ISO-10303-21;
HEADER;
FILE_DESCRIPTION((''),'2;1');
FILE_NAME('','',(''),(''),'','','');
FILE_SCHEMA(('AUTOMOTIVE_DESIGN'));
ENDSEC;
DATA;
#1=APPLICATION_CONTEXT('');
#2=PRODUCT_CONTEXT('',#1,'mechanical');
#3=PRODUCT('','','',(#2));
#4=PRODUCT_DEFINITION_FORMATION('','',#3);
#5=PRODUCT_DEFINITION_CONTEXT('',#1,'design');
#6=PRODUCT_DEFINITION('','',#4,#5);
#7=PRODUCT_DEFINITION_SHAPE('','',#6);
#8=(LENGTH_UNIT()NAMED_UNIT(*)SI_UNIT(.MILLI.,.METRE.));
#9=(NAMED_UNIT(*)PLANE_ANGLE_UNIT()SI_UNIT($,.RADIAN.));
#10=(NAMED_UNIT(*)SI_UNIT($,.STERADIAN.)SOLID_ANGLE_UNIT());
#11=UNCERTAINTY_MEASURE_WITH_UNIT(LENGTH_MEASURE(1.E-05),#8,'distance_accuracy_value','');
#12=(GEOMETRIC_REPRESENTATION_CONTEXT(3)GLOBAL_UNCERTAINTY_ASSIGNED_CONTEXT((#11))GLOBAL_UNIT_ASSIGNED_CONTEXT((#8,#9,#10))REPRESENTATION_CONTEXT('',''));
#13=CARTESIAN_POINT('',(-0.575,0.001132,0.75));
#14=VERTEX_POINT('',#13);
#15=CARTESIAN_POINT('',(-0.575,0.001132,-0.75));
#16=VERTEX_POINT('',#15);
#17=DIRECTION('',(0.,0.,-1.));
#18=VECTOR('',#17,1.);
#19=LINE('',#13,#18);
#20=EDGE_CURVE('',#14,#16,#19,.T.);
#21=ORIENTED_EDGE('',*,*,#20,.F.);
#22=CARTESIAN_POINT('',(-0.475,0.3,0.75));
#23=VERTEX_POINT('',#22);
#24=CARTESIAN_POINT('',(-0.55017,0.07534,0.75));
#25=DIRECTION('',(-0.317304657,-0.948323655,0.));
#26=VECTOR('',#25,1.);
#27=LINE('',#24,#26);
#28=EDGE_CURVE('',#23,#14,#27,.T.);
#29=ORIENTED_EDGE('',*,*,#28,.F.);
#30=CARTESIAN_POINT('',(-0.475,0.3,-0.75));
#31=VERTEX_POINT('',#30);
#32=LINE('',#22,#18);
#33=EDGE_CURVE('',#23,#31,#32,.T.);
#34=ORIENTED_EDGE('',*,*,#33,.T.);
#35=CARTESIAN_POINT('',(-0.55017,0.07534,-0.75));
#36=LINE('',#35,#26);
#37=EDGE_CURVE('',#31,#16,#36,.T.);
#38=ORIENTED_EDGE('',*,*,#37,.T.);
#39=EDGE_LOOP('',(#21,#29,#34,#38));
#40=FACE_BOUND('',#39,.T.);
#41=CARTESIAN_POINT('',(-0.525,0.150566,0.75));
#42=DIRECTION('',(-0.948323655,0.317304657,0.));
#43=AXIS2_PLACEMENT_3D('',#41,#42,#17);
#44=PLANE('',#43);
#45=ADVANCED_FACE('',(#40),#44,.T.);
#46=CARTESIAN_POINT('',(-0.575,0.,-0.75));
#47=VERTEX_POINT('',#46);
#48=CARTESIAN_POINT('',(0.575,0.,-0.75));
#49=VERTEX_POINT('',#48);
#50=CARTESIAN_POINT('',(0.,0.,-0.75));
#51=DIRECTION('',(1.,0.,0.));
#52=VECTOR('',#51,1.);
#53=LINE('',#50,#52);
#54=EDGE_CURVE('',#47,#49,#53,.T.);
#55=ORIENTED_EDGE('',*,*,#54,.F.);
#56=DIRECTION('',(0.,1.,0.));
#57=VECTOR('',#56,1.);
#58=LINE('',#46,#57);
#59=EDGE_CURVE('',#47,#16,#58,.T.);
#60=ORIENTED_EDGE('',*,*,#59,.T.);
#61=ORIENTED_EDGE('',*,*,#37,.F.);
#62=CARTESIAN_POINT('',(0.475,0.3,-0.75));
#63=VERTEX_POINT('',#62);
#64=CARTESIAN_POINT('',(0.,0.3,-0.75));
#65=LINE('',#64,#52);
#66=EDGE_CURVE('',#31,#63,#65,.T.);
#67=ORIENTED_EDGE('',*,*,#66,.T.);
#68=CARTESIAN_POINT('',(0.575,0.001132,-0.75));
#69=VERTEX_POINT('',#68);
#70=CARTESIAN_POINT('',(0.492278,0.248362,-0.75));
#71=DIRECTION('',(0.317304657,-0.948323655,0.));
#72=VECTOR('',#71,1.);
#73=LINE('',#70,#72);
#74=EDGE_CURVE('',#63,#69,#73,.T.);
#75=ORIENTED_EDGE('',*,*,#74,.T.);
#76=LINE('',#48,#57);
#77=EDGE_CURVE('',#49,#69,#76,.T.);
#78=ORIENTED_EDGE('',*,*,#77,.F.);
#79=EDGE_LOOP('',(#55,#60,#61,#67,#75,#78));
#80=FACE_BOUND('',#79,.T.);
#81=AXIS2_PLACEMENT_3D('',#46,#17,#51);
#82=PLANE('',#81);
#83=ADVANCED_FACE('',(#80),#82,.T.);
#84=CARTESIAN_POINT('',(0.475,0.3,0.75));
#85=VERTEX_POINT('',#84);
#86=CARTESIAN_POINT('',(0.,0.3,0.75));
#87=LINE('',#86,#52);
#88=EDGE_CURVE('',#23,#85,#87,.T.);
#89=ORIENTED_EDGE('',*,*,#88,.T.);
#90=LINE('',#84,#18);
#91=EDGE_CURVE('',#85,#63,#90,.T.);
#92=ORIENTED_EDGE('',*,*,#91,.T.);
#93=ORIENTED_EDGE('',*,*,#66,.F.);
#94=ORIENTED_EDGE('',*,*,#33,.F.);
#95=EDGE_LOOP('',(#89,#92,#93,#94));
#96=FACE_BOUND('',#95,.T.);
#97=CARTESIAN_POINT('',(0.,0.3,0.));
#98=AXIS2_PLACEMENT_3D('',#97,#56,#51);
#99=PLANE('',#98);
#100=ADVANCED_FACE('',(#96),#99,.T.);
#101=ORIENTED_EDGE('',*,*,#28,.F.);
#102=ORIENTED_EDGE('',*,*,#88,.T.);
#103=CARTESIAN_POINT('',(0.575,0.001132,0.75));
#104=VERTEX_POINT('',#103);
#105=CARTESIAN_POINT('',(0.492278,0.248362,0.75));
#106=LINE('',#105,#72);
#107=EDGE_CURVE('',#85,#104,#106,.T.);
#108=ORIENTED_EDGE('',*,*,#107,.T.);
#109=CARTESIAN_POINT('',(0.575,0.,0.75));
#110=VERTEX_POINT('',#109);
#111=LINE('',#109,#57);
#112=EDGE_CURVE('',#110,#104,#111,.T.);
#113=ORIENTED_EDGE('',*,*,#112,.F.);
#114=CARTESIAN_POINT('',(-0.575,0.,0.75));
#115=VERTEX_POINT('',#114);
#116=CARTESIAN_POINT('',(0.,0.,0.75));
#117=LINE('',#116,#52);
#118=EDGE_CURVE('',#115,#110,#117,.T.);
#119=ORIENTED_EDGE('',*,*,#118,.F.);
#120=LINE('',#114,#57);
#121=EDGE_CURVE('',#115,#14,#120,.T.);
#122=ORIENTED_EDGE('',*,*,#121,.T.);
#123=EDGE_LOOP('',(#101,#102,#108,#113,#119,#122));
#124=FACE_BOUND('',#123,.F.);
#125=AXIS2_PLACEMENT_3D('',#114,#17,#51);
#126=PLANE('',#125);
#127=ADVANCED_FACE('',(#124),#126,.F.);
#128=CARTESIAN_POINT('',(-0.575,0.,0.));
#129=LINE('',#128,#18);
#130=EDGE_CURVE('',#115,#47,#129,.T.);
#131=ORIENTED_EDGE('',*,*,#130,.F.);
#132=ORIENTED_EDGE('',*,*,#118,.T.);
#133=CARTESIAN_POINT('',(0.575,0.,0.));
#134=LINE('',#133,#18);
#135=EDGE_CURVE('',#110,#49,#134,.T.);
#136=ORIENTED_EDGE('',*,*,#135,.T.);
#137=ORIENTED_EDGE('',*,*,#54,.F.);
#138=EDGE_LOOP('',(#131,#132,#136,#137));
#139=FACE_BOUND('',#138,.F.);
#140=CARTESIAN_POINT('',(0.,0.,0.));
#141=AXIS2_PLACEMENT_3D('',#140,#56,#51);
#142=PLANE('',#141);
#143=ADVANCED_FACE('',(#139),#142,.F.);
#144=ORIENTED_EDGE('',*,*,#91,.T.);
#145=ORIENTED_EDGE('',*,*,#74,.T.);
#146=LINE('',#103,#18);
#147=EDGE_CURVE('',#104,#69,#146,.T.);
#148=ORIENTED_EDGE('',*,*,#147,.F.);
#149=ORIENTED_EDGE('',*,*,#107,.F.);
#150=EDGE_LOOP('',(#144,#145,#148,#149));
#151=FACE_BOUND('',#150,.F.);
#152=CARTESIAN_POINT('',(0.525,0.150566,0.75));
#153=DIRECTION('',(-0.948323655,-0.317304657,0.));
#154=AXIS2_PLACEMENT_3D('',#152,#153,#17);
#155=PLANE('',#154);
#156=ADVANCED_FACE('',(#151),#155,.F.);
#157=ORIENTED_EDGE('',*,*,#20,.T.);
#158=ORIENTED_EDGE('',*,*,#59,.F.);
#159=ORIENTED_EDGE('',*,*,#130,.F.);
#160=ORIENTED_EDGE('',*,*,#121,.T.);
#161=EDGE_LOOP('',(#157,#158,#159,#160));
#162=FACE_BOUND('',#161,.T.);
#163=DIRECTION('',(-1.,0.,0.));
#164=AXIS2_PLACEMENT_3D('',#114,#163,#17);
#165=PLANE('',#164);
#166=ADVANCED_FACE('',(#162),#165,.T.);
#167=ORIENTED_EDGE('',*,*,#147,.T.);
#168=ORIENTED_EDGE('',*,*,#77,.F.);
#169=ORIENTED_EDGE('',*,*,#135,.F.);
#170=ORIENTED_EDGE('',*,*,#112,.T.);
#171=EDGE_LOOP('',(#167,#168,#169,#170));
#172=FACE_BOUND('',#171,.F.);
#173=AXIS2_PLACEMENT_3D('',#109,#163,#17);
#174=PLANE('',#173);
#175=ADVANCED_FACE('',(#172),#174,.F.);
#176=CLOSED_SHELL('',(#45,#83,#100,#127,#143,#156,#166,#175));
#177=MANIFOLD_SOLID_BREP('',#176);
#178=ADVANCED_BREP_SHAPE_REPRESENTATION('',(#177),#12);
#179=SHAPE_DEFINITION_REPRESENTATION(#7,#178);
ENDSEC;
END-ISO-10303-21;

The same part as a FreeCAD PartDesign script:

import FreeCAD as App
import Part
import Sketcher


def edges_at(feature, points):
    """Names of the edges that pass closest to the given points."""
    edges = feature.Shape.Edges
    near = lambda p: min(range(len(edges)), key=lambda i: edges[i].distToShape(Part.Vertex(*p))[0])
    return sorted({f"Edge{near(p) + 1}" for p in points})

doc = App.newDocument("Part")
body = doc.addObject("PartDesign::Body", "Body")

# Sketch on XZ plane
sketch1 = body.newObject("Sketcher::SketchObject", "Sketch")
sketch1.AttachmentSupport = (doc.getObject("XZ_Plane"), [""])
sketch1.MapMode = "FlatFace"
sketch1.addGeometry([
    Part.LineSegment(App.Vector(-0.6, -0.8, 0), App.Vector(-0.6, 0.8, 0)),
    Part.LineSegment(App.Vector(-0.6, 0.8, 0), App.Vector(0.6, 0.8, 0)),
    Part.LineSegment(App.Vector(0.6, 0.8, 0), App.Vector(0.6, -0.8, 0)),
    Part.LineSegment(App.Vector(0.6, -0.8, 0), App.Vector(-0.6, -0.8, 0)),
], False)
sketch1.addConstraint([
    Sketcher.Constraint("Coincident", 0, 2, 1, 1),
    Sketcher.Constraint("Coincident", 1, 2, 2, 1),
    Sketcher.Constraint("Coincident", 2, 2, 3, 1),
    Sketcher.Constraint("Coincident", 3, 2, 0, 1),
    Sketcher.Constraint("Vertical", 0),
    Sketcher.Constraint("Horizontal", 1),
    Sketcher.Constraint("Vertical", 2),
    Sketcher.Constraint("Horizontal", 3),
    Sketcher.Constraint("Symmetric", 0, 2, 2, 2, -1, 1),
    Sketcher.Constraint("DistanceY", 0, 1, 0, 2, 1.5),
    Sketcher.Constraint("DistanceX", 1, 1, 1, 2, 1.15),
])
pad1 = body.newObject("PartDesign::Pad", "Pad")
pad1.Profile = sketch1
pad1.Length = 0.3
pad1.Reversed = True
doc.recompute()

chamfer = body.newObject("PartDesign::Chamfer", "Chamfer")
chamfer.Base = (pad1, edges_at(pad1, [(-0.575, 0.3, 0)]))
chamfer.ChamferType = "Two distances"
chamfer.Size = 0.1
chamfer.Size2 = 0.298868
chamfer.FlipDirection = True
doc.recompute()

chamfer2 = body.newObject("PartDesign::Chamfer", "Chamfer001")
chamfer2.Base = (chamfer, edges_at(chamfer, [(0.575, 0.3, 0)]))
chamfer2.ChamferType = "Two distances"
chamfer2.Size = 0.1
chamfer2.Size2 = 0.298868

doc.recompute()
